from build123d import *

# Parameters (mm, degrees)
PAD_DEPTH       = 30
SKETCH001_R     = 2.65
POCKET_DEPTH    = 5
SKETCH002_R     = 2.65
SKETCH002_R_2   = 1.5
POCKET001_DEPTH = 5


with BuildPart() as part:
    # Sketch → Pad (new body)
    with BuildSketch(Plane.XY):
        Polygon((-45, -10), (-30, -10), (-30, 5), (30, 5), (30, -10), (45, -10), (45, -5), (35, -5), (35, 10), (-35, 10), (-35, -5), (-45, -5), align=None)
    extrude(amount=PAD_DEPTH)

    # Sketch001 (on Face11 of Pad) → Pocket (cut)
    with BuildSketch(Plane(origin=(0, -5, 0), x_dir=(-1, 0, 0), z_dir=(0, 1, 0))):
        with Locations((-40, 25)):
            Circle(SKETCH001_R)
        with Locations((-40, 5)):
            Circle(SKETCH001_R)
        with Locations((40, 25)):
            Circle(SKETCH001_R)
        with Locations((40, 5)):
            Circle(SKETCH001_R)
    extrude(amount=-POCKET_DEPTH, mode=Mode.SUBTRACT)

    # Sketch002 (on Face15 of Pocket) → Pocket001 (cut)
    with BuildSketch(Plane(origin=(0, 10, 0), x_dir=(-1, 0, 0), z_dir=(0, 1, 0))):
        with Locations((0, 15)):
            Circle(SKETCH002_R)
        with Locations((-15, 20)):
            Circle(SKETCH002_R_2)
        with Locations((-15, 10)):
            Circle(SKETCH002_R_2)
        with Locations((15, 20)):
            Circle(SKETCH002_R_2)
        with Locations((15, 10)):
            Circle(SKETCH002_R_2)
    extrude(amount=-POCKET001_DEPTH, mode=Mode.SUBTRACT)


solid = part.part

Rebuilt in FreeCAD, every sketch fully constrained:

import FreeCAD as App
import Part
import Sketcher

V = App.Vector
Q = App.Units.Quantity


def add_polygon(sketch, points):
    """Adds a closed chain of lines whose ends are joined by coincident constraints."""
    first, n = sketch.GeometryCount, len(points)
    for a, b in zip(points, points[1:] + points[:1]):
        sketch.addGeometry(Part.LineSegment(App.Vector(*a, 0), App.Vector(*b, 0)), False)
    for i in range(n):
        sketch.addConstraint(Sketcher.Constraint("Coincident", first + i, 2, first + (i + 1) % n, 1))

doc = App.newDocument("Part")
body = doc.addObject("PartDesign::Body", "Body")

# Sketch on XY plane
sketch1 = body.newObject("Sketcher::SketchObject", "Sketch")
sketch1.AttachmentSupport = (doc.getObject("XY_Plane"), [""])
sketch1.MapMode = "FlatFace"
add_polygon(sketch1, [(-45, -10), (-30, -10), (-30, 5), (30, 5), (30, -10), (45, -10), (45, -5), (35, -5), (35, 10), (-35, 10), (-35, -5), (-45, -5)])  # lines 0-11
sketch1.addConstraint([
    Sketcher.Constraint("Horizontal", 0),
    Sketcher.Constraint("Vertical", 1),
    Sketcher.Constraint("Horizontal", 2),
    Sketcher.Constraint("Vertical", 3),
    Sketcher.Constraint("Horizontal", 4),
    Sketcher.Constraint("Vertical", 5),
    Sketcher.Constraint("Horizontal", 6),
    Sketcher.Constraint("Vertical", 7),
    Sketcher.Constraint("Horizontal", 8),
    Sketcher.Constraint("Vertical", 9),
    Sketcher.Constraint("Horizontal", 10),
    Sketcher.Constraint("Vertical", 11),
    Sketcher.Constraint("Symmetric", 0, 2, 3, 2, -2),
    Sketcher.Constraint("Symmetric", 6, 2, 9, 2, -2),
    Sketcher.Constraint("Equal", 0, 4),
    Sketcher.Constraint("Equal", 4, 1),
    Sketcher.Constraint("Equal", 3, 7),
    Sketcher.Constraint("DistanceX", 0, 1, 0, 2, Q("15 mm")),
    Sketcher.Constraint("DistanceX", 2, 1, 2, 2, Q("60 mm")),
    Sketcher.Constraint("DistanceX", 6, 2, 6, 1, Q("10 mm")),
    Sketcher.Constraint("DistanceY", 5, 1, 5, 2, Q("5 mm")),
    Sketcher.Constraint("DistanceY", 0, 2, -1, 1, Q("10 mm")),
])
pad1 = body.newObject("PartDesign::Pad", "Pad")
pad1.Profile = sketch1
pad1.Length = 30

# Sketch on XZ plane
sketch2 = body.newObject("Sketcher::SketchObject", "Sketch001")
sketch2.AttachmentSupport = (doc.getObject("XZ_Plane"), [""])
sketch2.MapMode = "FlatFace"
sketch2.AttachmentOffset = App.Placement(V(0, 0, 5), App.Rotation())
sketch2.addGeometry([
    Part.Circle(V(40, 25, 0), V(0, 0, 1), 2.6),
    Part.Circle(V(40, 5, 0), V(0, 0, 1), 2.6),
    Part.Circle(V(-40, 25, 0), V(0, 0, 1), 2.6),
    Part.Circle(V(-40, 5, 0), V(0, 0, 1), 2.6),
], False)
sketch2.addConstraint([
    Sketcher.Constraint("Equal", 0, 1),
    Sketcher.Constraint("Equal", 1, 2),
    Sketcher.Constraint("Equal", 2, 3),
    Sketcher.Constraint("Symmetric", 0, 3, 2, 3, -2),
    Sketcher.Constraint("Symmetric", 1, 3, 3, 3, -2),
    Sketcher.Constraint("Vertical", 0, 3, 1, 3),
    Sketcher.Constraint("Diameter", 0, Q("5.3 mm")),
    Sketcher.Constraint("DistanceX", -1, 1, 0, 3, Q("40 mm")),
    Sketcher.Constraint("DistanceY", -1, 1, 0, 3, Q("25 mm")),
    Sketcher.Constraint("DistanceY", -1, 1, 1, 3, Q("5 mm")),
])
pocket1 = body.newObject("PartDesign::Pocket", "Pocket")
pocket1.Profile = sketch2
pocket1.Length = 5
pocket1.Reversed = True

# Sketch on XZ plane
sketch3 = body.newObject("Sketcher::SketchObject", "Sketch002")
sketch3.AttachmentSupport = (doc.getObject("XZ_Plane"), [""])
sketch3.MapMode = "FlatFace"
sketch3.AttachmentOffset = App.Placement(V(0, 0, -10), App.Rotation())
sketch3.addGeometry([
    Part.Circle(V(0, 15, 0), V(0, 0, 1), 2.6),  # 0
    Part.Circle(V(15, 20, 0), V(0, 0, 1), 1.5),  # 1
    Part.Circle(V(15, 10, 0), V(0, 0, 1), 1.5),  # 2
    Part.Circle(V(-15, 20, 0), V(0, 0, 1), 1.5),  # 3
    Part.Circle(V(-15, 10, 0), V(0, 0, 1), 1.5),  # 4
], False)
sketch3.addConstraint([
    Sketcher.Constraint("Equal", 1, 2),
    Sketcher.Constraint("Equal", 2, 3),
    Sketcher.Constraint("Equal", 3, 4),
    Sketcher.Constraint("Symmetric", 1, 3, 3, 3, -2),
    Sketcher.Constraint("Symmetric", 2, 3, 4, 3, -2),
    Sketcher.Constraint("PointOnObject", 0, 3, -2),
    Sketcher.Constraint("Vertical", 1, 3, 2, 3),
    Sketcher.Constraint("Diameter", 1, Q("3 mm")),
    Sketcher.Constraint("Diameter", 0, Q("5.3 mm")),
    Sketcher.Constraint("DistanceY", -1, 1, 0, 3, Q("15 mm")),
    Sketcher.Constraint("DistanceX", -1, 1, 1, 3, Q("15 mm")),
    Sketcher.Constraint("DistanceY", -1, 1, 1, 3, Q("20 mm")),
    Sketcher.Constraint("DistanceY", -1, 1, 2, 3, Q("10 mm")),
])
pocket2 = body.newObject("PartDesign::Pocket", "Pocket001")
pocket2.Profile = sketch3
pocket2.Length = 5
pocket2.Reversed = True

doc.recompute()
